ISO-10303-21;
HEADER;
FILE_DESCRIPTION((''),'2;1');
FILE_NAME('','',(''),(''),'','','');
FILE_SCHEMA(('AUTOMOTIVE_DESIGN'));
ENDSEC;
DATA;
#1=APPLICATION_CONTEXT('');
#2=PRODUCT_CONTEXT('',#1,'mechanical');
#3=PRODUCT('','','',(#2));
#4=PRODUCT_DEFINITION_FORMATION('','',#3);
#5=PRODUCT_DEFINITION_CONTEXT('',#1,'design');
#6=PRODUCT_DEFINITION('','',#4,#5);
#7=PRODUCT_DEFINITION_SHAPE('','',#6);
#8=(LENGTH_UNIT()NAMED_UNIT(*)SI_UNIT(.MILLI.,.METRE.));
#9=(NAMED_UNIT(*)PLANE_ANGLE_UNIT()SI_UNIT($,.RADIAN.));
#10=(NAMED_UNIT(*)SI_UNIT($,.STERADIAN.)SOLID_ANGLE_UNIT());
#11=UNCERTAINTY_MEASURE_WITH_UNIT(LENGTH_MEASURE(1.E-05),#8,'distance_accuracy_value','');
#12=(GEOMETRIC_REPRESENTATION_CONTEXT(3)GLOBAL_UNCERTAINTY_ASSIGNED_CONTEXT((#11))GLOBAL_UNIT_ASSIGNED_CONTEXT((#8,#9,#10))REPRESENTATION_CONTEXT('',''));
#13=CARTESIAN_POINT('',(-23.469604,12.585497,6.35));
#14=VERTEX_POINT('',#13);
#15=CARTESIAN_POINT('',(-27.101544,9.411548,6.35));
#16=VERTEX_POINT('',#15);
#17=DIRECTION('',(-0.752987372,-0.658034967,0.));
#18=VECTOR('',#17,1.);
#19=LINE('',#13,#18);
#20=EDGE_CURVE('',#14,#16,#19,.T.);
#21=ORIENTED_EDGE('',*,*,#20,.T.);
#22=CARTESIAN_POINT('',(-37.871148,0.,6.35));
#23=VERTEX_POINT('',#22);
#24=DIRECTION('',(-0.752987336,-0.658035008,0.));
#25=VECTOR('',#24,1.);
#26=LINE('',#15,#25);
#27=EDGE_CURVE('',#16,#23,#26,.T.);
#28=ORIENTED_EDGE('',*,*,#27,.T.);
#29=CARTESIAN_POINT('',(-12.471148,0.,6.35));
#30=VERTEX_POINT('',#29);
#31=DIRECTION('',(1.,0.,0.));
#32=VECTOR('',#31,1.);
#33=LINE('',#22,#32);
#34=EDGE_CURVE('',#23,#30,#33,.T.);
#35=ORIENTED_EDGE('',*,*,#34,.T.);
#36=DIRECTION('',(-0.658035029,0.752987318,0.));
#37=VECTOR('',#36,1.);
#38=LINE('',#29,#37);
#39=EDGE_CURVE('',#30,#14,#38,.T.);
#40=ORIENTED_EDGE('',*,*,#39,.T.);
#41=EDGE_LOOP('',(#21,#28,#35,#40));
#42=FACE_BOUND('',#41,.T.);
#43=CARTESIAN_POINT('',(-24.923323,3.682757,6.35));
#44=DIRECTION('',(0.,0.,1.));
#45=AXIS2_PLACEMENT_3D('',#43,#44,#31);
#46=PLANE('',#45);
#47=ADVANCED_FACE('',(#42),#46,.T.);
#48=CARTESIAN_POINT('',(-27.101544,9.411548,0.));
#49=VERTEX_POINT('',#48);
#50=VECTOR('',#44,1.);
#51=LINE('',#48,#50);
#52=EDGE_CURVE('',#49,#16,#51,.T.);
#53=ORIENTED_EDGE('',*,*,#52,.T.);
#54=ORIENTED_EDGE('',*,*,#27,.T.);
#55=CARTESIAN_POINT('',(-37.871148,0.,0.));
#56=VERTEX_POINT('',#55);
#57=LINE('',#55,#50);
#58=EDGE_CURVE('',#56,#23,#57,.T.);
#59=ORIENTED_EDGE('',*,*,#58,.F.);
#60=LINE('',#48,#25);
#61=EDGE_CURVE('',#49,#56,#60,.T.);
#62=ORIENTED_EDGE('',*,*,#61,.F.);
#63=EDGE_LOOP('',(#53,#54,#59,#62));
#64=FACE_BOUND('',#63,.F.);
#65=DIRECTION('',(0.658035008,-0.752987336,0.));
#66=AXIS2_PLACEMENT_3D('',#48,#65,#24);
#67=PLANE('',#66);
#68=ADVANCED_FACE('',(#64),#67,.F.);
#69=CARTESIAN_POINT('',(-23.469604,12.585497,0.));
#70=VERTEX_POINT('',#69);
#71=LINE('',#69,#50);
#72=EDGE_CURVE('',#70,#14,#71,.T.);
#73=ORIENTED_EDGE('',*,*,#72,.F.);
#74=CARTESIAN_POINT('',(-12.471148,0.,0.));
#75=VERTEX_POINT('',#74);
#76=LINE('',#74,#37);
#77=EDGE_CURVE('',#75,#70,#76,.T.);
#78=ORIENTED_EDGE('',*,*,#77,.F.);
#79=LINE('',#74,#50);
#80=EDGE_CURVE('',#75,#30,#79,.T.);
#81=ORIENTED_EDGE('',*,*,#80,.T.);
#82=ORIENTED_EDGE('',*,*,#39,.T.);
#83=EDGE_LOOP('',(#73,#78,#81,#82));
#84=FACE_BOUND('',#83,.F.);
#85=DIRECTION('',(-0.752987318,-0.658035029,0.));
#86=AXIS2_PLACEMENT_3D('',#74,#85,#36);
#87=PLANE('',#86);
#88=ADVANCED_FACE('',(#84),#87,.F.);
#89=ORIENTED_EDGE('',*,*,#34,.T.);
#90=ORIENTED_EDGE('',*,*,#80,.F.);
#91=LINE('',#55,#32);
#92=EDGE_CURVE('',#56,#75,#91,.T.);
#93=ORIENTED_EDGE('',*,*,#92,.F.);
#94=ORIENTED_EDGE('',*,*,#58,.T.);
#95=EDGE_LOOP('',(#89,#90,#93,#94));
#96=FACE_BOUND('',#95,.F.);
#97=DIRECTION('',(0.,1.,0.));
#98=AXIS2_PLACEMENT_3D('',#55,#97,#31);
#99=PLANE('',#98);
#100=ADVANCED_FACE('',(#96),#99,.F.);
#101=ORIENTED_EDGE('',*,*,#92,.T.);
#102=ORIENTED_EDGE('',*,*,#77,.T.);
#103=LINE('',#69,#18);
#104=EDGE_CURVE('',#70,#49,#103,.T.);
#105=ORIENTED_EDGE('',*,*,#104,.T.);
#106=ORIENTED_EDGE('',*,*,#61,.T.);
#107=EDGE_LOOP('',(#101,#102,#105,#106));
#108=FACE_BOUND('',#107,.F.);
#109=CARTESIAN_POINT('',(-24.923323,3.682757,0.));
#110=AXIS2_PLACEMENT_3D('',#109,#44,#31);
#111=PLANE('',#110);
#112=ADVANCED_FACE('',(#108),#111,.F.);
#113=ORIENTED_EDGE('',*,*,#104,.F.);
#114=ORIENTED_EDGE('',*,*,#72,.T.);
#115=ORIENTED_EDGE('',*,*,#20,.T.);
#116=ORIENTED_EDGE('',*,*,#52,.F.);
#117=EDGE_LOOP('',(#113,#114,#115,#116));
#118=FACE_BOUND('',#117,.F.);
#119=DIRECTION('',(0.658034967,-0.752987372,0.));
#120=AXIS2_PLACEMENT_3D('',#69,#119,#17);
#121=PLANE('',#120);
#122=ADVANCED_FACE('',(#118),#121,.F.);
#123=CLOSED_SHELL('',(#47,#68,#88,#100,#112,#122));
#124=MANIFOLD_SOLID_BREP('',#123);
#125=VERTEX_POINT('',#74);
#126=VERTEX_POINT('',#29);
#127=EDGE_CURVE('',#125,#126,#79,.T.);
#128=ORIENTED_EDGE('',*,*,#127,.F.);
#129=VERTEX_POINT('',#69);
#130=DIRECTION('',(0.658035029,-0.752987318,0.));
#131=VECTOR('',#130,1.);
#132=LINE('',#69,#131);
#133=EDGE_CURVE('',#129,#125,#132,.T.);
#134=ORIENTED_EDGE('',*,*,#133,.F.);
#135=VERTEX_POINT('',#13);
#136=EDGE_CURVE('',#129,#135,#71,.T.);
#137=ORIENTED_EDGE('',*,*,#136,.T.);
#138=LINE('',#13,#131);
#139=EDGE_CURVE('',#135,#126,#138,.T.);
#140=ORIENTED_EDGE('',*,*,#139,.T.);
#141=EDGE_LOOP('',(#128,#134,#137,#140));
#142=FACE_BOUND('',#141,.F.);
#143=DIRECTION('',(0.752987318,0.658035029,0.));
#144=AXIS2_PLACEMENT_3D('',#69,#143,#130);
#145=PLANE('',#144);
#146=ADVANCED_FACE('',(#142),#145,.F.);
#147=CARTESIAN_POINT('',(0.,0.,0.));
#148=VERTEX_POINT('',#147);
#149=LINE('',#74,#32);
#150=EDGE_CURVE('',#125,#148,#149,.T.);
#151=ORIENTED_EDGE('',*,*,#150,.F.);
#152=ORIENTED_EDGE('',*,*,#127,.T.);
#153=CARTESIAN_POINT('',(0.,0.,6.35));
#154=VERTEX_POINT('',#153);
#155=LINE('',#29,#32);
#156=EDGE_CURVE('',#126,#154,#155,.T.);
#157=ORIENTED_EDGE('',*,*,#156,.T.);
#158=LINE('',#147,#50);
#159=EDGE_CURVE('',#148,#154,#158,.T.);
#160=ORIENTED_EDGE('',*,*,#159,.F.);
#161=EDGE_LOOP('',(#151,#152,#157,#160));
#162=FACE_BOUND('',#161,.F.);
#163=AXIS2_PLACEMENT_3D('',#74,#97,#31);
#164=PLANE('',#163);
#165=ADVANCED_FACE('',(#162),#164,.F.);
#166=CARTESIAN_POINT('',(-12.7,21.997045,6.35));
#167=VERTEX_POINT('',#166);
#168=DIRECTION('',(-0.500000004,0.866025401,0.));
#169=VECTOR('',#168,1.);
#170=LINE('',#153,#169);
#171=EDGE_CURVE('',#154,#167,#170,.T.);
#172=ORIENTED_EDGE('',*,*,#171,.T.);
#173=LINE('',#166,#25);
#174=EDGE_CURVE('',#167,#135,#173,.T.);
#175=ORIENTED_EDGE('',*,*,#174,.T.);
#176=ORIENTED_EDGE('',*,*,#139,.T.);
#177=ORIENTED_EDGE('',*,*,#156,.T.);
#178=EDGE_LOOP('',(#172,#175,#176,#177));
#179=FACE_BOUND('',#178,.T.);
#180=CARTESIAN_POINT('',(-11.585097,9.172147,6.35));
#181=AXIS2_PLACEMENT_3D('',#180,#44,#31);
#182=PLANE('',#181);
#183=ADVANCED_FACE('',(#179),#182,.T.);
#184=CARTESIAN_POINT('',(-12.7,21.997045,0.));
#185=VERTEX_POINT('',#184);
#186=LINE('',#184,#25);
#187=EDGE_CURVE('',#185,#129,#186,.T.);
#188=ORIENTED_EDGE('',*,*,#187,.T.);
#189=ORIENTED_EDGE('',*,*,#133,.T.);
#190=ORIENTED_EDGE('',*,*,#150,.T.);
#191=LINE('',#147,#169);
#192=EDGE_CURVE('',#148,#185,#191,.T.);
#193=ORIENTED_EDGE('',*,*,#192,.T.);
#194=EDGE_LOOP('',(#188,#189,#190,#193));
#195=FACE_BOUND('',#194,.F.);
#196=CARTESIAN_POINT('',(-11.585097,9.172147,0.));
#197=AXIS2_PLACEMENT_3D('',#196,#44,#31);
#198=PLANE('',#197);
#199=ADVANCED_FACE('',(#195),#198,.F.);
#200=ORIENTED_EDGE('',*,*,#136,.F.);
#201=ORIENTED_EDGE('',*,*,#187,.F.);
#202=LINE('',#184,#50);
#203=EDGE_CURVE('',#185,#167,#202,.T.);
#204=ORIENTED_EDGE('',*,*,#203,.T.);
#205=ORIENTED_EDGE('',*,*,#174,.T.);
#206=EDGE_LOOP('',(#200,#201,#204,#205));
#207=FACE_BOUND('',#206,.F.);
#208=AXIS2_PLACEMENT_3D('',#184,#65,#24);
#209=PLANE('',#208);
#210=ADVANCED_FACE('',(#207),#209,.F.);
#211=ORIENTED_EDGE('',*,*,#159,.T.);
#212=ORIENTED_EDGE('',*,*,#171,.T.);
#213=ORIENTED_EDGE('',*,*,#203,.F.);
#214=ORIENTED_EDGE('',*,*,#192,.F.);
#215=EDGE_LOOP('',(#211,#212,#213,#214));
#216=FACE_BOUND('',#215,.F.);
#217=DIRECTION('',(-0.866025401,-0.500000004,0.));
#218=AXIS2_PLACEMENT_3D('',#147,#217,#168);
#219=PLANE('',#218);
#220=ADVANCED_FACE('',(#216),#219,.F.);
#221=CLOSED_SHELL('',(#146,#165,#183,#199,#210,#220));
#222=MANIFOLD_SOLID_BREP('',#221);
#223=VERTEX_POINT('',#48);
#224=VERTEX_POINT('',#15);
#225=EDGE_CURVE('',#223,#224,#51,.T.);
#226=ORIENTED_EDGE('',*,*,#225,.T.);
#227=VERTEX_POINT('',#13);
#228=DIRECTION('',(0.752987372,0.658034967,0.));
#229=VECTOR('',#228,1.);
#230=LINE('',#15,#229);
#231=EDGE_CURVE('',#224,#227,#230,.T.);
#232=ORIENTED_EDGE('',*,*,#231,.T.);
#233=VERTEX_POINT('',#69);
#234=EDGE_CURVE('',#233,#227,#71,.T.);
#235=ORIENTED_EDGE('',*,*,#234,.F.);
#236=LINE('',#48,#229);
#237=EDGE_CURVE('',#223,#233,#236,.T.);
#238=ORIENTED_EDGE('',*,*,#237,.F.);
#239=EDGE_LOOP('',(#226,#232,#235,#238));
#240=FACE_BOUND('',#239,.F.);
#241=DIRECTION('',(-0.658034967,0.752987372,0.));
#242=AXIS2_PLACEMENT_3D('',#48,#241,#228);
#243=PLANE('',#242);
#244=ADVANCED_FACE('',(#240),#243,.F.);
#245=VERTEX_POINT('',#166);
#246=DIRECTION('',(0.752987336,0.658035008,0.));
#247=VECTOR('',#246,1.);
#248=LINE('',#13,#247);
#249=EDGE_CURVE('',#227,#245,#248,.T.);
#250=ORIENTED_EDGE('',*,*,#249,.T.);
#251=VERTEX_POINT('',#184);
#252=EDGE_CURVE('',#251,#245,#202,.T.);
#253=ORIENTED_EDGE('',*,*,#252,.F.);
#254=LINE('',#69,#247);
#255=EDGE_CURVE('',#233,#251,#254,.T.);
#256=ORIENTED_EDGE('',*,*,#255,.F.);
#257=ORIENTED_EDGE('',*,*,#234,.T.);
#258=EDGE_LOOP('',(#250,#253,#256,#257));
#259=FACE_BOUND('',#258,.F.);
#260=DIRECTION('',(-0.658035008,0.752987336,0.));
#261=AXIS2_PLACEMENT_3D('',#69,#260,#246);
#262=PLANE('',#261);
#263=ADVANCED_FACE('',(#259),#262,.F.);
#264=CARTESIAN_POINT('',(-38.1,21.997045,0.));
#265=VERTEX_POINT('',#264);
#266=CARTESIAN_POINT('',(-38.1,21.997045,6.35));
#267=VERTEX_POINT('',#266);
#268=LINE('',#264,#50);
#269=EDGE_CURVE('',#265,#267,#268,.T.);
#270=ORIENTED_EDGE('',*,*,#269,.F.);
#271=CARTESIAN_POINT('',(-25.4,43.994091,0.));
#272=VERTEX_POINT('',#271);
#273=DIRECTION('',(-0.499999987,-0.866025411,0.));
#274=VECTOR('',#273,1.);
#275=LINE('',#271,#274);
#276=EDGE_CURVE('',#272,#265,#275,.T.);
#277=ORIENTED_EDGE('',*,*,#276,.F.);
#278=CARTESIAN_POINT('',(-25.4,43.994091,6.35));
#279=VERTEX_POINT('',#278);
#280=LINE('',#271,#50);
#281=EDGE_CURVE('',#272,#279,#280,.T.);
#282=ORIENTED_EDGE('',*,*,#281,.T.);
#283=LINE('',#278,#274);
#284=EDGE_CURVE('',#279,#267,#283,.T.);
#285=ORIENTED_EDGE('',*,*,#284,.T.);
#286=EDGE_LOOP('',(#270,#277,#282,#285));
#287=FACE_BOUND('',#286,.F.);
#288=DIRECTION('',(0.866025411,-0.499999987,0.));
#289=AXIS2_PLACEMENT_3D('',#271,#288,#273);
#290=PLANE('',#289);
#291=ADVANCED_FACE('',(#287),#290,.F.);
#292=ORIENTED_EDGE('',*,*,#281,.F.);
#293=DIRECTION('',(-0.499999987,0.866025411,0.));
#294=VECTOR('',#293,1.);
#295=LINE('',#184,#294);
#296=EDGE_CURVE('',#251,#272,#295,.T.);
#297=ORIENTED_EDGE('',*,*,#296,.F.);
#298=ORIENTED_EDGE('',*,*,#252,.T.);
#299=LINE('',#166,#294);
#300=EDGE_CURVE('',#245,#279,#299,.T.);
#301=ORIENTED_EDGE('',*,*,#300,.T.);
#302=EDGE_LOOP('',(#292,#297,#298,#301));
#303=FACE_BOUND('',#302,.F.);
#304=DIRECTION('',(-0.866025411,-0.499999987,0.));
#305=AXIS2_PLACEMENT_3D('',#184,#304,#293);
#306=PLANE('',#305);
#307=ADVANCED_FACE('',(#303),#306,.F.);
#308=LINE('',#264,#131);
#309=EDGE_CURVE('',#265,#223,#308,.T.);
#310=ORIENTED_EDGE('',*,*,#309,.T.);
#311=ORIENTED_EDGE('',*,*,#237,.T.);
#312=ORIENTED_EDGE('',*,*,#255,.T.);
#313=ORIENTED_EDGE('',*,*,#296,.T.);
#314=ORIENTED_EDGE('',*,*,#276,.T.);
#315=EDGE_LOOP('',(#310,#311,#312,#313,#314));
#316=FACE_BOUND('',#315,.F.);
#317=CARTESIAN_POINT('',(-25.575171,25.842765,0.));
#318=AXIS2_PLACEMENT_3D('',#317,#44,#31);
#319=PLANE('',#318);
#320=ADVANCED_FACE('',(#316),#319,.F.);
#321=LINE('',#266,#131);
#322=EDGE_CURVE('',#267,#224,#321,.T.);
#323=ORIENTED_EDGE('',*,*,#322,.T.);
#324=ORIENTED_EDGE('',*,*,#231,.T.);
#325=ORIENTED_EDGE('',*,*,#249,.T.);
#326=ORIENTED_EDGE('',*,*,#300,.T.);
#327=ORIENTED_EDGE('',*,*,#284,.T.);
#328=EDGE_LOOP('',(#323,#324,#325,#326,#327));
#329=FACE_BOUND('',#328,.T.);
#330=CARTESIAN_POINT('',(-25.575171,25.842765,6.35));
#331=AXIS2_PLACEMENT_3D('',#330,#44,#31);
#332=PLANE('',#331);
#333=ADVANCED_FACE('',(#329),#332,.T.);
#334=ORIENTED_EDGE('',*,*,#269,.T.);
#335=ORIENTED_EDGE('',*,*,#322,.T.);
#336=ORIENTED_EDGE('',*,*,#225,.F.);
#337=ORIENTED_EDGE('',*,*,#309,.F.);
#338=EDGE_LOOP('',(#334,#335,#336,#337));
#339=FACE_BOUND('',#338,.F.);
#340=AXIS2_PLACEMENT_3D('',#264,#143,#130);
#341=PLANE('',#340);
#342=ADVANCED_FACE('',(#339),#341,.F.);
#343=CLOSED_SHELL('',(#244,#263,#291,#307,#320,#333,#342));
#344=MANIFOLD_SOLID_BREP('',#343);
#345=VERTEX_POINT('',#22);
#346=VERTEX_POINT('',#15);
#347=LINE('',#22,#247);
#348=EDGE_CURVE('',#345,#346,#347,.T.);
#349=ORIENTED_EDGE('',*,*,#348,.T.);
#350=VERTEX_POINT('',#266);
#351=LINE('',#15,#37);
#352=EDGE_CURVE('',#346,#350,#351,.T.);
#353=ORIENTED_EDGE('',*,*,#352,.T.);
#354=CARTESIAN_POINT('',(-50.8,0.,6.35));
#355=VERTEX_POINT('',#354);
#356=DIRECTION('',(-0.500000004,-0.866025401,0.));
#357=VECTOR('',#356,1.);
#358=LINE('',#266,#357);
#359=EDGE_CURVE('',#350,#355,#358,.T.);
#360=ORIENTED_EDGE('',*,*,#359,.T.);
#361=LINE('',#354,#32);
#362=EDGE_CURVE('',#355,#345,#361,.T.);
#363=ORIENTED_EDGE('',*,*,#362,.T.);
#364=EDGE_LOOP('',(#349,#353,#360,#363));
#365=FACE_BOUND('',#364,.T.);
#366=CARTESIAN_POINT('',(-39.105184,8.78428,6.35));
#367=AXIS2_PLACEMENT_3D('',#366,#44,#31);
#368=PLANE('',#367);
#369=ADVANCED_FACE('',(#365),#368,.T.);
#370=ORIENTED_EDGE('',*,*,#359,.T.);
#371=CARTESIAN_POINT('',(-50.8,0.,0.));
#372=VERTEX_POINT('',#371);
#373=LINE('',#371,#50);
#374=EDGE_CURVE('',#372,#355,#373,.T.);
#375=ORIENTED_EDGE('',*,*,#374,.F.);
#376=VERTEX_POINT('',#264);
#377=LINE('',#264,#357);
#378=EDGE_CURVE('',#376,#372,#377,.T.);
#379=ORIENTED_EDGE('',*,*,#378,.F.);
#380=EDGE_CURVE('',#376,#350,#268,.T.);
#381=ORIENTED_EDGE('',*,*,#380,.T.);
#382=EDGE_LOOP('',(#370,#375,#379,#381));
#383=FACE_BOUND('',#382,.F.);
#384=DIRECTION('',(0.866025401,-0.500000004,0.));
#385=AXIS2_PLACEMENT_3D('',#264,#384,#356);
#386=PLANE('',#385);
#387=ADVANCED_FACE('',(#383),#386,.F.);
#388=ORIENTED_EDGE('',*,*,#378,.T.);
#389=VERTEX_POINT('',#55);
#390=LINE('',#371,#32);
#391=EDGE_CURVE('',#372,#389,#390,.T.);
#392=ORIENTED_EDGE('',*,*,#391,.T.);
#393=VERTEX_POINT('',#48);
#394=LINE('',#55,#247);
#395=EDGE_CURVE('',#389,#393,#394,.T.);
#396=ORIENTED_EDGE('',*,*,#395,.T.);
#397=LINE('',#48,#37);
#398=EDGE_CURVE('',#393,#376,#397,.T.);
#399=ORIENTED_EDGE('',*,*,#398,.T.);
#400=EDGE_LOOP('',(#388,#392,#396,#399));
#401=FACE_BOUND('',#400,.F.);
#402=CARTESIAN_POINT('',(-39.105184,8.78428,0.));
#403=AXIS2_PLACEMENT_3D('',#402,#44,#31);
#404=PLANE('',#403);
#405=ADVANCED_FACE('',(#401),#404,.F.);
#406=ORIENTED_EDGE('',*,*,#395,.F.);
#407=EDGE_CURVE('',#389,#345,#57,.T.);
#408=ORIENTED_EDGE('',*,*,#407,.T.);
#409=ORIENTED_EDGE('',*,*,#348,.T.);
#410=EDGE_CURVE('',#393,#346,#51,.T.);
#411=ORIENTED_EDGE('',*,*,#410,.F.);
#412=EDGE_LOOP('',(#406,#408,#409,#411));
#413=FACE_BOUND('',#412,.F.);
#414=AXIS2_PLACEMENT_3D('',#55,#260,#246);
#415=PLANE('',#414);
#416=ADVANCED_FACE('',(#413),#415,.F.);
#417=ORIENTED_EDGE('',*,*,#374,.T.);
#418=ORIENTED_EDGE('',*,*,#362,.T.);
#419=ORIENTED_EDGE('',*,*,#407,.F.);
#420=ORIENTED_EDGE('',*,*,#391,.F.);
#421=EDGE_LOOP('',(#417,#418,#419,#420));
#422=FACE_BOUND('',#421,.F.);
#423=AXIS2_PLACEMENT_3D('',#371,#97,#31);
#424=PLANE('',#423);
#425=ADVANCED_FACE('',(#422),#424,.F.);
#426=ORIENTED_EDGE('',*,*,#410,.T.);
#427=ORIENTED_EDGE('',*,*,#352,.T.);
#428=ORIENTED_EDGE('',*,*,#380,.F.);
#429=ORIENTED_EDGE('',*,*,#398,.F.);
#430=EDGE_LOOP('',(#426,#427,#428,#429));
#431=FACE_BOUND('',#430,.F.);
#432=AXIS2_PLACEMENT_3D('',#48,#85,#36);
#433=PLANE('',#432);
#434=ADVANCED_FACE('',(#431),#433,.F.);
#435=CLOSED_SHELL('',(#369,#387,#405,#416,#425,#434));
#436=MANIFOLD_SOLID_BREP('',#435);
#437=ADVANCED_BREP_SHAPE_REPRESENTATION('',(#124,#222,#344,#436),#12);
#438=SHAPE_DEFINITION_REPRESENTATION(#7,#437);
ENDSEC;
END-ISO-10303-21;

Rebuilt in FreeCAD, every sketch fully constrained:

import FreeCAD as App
import Part
import Sketcher

V = App.Vector
Q = App.Units.Quantity

doc = App.newDocument("Part")
params = doc.addObject("Spreadsheet::Sheet", "Params")
for row, (alias, value) in enumerate([
    ("sketch1_length", "1 in"),
    ("pad1_length", "0.25 in"),
    ("sketch2_length", "1 in"),
    ("pad2_length", "0.25 in"),
    ("sketch3_width", "1 in"),
    ("pad3_length", "0.25 in"),
], start=1):
    params.set(f"A{row}", alias)
    params.set(f"B{row}", "=" + value)
    params.setAlias(f"B{row}", alias)

body = doc.addObject("PartDesign::Body", "Body")
body.AllowCompound = True

# Sketch on XY plane
sketch1 = body.newObject("Sketcher::SketchObject", "Sketch")
sketch1.AttachmentSupport = (doc.getObject("XY_Plane"), [""])
sketch1.MapMode = "FlatFace"
sketch1.addGeometry([
    Part.LineSegment(V(-38.1, 21.997045, 0), V(-50.8, 0, 0)),  # 0
    Part.LineSegment(V(-50.8, 0, 0), V(-37.871148, 0, 0)),  # 1
    Part.LineSegment(V(-37.871148, 0, 0), V(-27.101544, 9.411548, 0)),  # 2
    Part.LineSegment(V(-27.101544, 9.411548, 0), V(-38.1, 21.997045, 0)),  # 3
    Part.LineSegment(V(-23.469604, 12.585497, 0), V(-12.471148, 0, 0)),  # 4
    Part.LineSegment(V(-12.471148, 0, 0), V(0, 0, 0)),  # 5
    Part.LineSegment(V(0, 0, 0), V(-12.7, 21.997045, 0)),  # 6
    Part.LineSegment(V(-12.7, 21.997045, 0), V(-23.469604, 12.585497, 0)),  # 7
], False)
sketch1.addConstraint([
    Sketcher.Constraint("Coincident", 0, 2, 1, 1),
    Sketcher.Constraint("Coincident", 1, 2, 2, 1),
    Sketcher.Constraint("Coincident", 2, 2, 3, 1),
    Sketcher.Constraint("Coincident", 3, 2, 0, 1),
    Sketcher.Constraint("Coincident", 4, 2, 5, 1),
    Sketcher.Constraint("Coincident", 5, 2, 6, 1),
    Sketcher.Constraint("Coincident", 6, 2, 7, 1),
    Sketcher.Constraint("Coincident", 7, 2, 4, 1),
    Sketcher.Constraint("Horizontal", 1),
    Sketcher.Constraint("Horizontal", 5),
    Sketcher.Constraint("Coincident", 5, 2, -1, 1),
    Sketcher.Constraint("PointOnObject", 0, 2, -1),
    Sketcher.Constraint("Perpendicular", 2, 3),
    Sketcher.Constraint("Parallel", 3, 4),
    Sketcher.Constraint("Perpendicular", 4, 7),
    Sketcher.Constraint("Horizontal", 3, 2, 6, 2),
    Sketcher.Constraint("Equal", 3, 4),
    Sketcher.Constraint("Equal", 0, 6),
    Sketcher.Constraint("Distance", 0, Q("1 in")),
    Sketcher.Constraint("DistanceX", 0, 2, -1, 1, Q("2 in")),
    Sketcher.Constraint("Angle", 0, Q("-120 deg")),
    Sketcher.Constraint("DistanceX", 7, 2, -1, 1, Q("0.9240002 in")),
    Sketcher.Constraint("DistanceX", 1, 1, 1, 2, Q("12.928852 mm")),
])
sketch1.setExpression("Constraints[18]", "Params.sketch1_length")
pad1 = body.newObject("PartDesign::Pad", "Pad")
pad1.Profile = sketch1
pad1.setExpression("Length", "Params.pad1_length")
body2 = doc.addObject("PartDesign::Body", "Body001")

# Sketch on XY plane
sketch2 = body2.newObject("Sketcher::SketchObject", "Sketch001")
sketch2.AttachmentSupport = (doc.getObject("XY_Plane001"), [""])
sketch2.MapMode = "FlatFace"
sketch2.addGeometry([
    Part.LineSegment(V(-25.4, 43.994091, 0), V(-38.1, 21.997045, 0)),  # 0
    Part.LineSegment(V(-38.1, 21.997045, 0), V(-27.101544, 9.411548, 0)),  # 1
    Part.LineSegment(V(-27.101544, 9.411548, 0), V(-23.469604, 12.585497, 0)),  # 2
    Part.LineSegment(V(-23.469604, 12.585497, 0), V(-12.7, 21.997045, 0)),  # 3
    Part.LineSegment(V(-12.7, 21.997045, 0), V(-25.4, 43.994091, 0)),  # 4
], False)
sketch2.addConstraint([
    Sketcher.Constraint("Coincident", 0, 2, 1, 1),
    Sketcher.Constraint("Coincident", 1, 2, 2, 1),
    Sketcher.Constraint("Coincident", 2, 2, 3, 1),
    Sketcher.Constraint("Coincident", 3, 2, 4, 1),
    Sketcher.Constraint("Coincident", 4, 2, 0, 1),
    Sketcher.Constraint("Perpendicular", 1, 2),
    Sketcher.Constraint("Parallel", 2, 3),
    Sketcher.Constraint("Horizontal", 0, 2, 3, 2),
    Sketcher.Constraint("Equal", 0, 4),
    Sketcher.Constraint("Distance", 0, Q("1 in")),
    Sketcher.Constraint("DistanceX", 4, 2, -1, 1, Q("1 in")),
    Sketcher.Constraint("Angle", 0, Q("-119.999999 deg")),
    Sketcher.Constraint("DistanceX", 2, 2, -1, 1, Q("0.9240002 in")),
    Sketcher.Constraint("Distance", 1, Q("16.714089 mm")),
    Sketcher.Constraint("DistanceY", -1, 1, 4, 2, Q("43.994091 mm")),
])
sketch2.setExpression("Constraints[9]", "Params.sketch2_length")
pad2 = body2.newObject("PartDesign::Pad", "Pad001")
pad2.Profile = sketch2
pad2.setExpression("Length", "Params.pad2_length")
body3 = doc.addObject("PartDesign::Body", "Body002")

# Sketch on XY plane
sketch3 = body3.newObject("Sketcher::SketchObject", "Sketch002")
sketch3.AttachmentSupport = (doc.getObject("XY_Plane002"), [""])
sketch3.MapMode = "FlatFace"
sketch3.addGeometry([
    Part.LineSegment(V(-27.101544, 9.411548, 0), V(-37.871148, 0, 0)),
    Part.LineSegment(V(-37.871148, 0, 0), V(-12.471148, 0, 0)),
    Part.LineSegment(V(-12.471148, 0, 0), V(-23.469604, 12.585497, 0)),
    Part.LineSegment(V(-23.469604, 12.585497, 0), V(-27.101544, 9.411548, 0)),
], False)
sketch3.addConstraint([
    Sketcher.Constraint("Coincident", 0, 2, 1, 1),
    Sketcher.Constraint("Coincident", 1, 2, 2, 1),
    Sketcher.Constraint("Coincident", 2, 2, 3, 1),
    Sketcher.Constraint("Coincident", 3, 2, 0, 1),
    Sketcher.Constraint("Horizontal", 1),
    Sketcher.Constraint("PointOnObject", 0, 2, -1),
    Sketcher.Constraint("Perpendicular", 0, 2),
    Sketcher.Constraint("Perpendicular", 2, 3),
    Sketcher.Constraint("DistanceX", 1, 1, 1, 2, Q("1 in")),
    Sketcher.Constraint("DistanceX", 2, 2, -1, 1, Q("0.9240002 in")),
    Sketcher.Constraint("DistanceX", 0, 2, 3, 2, Q("0.4240002 in")),
    Sketcher.Constraint("Distance", 2, Q("16.714089 mm")),
])
sketch3.setExpression("Constraints[8]", "Params.sketch3_width")
pad3 = body3.newObject("PartDesign::Pad", "Pad002")
pad3.Profile = sketch3
pad3.setExpression("Length", "Params.pad3_length")

doc.recompute()
